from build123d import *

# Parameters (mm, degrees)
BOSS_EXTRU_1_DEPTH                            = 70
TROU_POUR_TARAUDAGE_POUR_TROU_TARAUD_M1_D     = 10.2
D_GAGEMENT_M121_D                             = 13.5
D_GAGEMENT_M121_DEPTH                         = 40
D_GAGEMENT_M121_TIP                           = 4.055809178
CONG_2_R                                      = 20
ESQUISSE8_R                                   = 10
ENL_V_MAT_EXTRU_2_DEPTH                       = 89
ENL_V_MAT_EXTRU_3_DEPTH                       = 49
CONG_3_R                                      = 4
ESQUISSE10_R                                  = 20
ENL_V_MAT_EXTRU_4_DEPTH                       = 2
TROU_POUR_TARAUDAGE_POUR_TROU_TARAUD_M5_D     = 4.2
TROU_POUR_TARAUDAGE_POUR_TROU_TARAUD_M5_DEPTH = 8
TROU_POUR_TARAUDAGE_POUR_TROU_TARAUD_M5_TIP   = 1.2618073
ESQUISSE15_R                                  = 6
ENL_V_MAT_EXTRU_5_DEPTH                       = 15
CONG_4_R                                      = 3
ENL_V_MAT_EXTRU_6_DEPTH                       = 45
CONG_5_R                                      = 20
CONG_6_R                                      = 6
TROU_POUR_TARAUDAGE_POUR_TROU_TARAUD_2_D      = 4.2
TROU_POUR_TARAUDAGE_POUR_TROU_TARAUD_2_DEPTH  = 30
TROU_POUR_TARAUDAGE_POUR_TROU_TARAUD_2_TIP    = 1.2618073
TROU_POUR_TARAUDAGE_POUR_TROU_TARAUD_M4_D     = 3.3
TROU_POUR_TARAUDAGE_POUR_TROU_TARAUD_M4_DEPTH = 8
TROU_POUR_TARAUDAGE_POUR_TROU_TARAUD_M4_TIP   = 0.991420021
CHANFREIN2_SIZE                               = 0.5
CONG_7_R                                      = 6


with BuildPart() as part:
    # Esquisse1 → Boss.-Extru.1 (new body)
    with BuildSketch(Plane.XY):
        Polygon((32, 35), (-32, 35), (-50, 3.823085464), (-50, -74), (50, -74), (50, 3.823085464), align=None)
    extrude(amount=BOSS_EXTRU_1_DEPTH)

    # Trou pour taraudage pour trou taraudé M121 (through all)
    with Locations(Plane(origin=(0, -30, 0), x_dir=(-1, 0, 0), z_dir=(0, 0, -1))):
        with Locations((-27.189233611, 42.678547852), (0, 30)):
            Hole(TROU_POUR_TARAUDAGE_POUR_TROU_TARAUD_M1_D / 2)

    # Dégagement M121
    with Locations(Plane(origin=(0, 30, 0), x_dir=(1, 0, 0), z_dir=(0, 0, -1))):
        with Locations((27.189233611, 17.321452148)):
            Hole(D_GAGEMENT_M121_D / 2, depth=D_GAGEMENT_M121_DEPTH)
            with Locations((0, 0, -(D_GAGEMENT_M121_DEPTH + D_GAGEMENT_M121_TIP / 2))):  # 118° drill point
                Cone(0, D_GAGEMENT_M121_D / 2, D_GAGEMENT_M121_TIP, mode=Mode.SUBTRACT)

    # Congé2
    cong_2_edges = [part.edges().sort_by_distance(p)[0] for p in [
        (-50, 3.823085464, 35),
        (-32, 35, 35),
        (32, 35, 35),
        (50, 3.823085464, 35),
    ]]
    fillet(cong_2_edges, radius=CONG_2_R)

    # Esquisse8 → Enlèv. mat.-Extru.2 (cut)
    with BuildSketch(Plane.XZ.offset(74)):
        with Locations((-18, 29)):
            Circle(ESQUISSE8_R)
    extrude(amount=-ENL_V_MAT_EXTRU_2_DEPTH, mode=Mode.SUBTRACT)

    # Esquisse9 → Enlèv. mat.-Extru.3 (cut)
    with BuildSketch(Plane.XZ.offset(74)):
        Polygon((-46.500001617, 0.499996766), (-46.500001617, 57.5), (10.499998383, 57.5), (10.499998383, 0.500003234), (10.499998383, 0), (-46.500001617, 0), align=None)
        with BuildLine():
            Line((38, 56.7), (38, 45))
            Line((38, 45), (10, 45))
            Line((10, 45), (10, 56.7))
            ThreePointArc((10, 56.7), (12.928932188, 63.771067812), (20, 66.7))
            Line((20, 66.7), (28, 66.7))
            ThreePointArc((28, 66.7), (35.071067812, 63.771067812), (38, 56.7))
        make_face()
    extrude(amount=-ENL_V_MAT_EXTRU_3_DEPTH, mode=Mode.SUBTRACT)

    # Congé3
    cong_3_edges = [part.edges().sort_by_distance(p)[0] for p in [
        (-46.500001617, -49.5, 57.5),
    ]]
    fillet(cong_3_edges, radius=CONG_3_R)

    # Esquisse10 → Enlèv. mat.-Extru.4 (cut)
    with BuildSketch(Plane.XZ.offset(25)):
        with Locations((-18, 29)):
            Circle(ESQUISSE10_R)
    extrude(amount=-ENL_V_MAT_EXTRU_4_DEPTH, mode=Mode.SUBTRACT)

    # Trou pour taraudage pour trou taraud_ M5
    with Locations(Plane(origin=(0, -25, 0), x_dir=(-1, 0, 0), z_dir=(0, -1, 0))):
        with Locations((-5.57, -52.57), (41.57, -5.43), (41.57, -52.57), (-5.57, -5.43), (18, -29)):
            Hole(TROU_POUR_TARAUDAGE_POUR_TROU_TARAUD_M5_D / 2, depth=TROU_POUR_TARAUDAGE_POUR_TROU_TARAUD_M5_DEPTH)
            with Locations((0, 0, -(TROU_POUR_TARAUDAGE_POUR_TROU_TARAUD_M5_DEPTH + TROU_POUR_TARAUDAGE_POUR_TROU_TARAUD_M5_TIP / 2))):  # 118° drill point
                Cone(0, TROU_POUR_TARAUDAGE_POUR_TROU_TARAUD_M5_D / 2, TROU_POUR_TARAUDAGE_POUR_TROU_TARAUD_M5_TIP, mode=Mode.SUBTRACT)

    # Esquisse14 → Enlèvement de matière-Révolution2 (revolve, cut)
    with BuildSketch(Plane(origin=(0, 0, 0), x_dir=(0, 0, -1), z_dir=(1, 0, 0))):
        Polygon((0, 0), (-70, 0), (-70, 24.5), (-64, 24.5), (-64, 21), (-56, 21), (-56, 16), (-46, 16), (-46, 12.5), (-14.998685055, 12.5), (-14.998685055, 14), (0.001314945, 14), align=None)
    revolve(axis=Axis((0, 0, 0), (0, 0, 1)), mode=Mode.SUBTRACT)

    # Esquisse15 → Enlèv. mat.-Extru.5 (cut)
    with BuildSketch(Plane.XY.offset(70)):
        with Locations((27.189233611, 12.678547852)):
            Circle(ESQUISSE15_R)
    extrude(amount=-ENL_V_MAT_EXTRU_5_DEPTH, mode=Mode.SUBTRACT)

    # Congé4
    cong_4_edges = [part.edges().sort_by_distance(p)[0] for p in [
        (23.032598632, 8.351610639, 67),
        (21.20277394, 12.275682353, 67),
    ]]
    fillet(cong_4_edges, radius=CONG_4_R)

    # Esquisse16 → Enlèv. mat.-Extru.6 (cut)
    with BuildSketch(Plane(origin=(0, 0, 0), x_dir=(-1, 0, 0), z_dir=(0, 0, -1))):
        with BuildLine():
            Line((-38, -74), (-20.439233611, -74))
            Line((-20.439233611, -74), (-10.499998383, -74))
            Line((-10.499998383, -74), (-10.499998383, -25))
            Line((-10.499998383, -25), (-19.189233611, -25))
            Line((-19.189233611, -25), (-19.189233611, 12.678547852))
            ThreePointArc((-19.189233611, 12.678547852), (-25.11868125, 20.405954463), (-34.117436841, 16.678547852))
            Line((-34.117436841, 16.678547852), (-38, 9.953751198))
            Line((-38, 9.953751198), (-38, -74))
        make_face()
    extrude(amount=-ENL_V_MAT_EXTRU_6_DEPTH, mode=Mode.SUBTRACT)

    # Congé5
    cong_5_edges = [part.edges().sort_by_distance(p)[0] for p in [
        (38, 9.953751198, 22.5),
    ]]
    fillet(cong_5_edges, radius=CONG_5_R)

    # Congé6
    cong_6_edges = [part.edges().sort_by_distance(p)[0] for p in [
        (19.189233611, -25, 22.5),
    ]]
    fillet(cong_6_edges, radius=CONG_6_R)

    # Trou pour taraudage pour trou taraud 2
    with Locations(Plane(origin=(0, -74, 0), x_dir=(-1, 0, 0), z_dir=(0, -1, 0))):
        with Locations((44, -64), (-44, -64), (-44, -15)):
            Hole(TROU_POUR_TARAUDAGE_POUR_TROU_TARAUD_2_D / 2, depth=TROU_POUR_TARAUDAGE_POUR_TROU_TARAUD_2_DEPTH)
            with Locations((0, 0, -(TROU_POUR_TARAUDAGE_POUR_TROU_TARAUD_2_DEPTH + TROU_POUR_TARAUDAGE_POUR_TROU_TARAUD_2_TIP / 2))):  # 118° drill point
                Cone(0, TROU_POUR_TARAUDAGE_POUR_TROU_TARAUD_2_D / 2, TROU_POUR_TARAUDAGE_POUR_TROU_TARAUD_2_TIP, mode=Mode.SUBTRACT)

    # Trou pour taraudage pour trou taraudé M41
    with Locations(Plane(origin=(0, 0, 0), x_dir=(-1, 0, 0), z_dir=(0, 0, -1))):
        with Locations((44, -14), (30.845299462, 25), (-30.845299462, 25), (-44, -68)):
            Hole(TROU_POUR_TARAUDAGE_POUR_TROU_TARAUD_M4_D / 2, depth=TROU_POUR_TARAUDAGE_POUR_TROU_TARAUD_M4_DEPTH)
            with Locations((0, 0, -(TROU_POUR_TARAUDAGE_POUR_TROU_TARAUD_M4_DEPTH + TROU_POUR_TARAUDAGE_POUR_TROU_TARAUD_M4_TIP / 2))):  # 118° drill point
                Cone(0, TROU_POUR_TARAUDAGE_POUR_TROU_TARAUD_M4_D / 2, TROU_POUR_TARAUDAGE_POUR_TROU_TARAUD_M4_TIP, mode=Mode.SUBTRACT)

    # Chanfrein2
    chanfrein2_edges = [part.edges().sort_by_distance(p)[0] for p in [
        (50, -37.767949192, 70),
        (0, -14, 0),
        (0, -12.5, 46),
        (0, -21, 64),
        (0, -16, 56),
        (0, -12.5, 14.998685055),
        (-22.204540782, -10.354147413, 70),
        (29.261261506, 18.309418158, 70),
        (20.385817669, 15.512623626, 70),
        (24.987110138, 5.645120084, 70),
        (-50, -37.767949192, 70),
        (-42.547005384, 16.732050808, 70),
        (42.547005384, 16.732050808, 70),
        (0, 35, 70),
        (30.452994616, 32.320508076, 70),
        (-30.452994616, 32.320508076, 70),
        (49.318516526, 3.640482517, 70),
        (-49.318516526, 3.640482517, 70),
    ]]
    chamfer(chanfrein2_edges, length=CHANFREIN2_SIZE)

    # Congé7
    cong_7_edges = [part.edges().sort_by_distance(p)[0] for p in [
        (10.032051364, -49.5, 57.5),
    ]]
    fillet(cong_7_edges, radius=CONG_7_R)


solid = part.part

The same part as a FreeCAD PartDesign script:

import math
import FreeCAD as App
import Part
import Sketcher

V = App.Vector
Q = App.Units.Quantity


def edges_at(feature, points):
    """Names of the edges that pass closest to the given points."""
    edges = feature.Shape.Edges
    near = lambda p: min(range(len(edges)), key=lambda i: edges[i].distToShape(Part.Vertex(*p))[0])
    return sorted({f"Edge{near(p) + 1}" for p in points})

doc = App.newDocument("Part")
params = doc.addObject("Spreadsheet::Sheet", "Params")
for row, (alias, value) in enumerate([
    ("sketch1_width", "64 mm"),
    ("sketch1_width2", "100 mm"),
    ("pad1_length", "70 mm"),
    ("sketch2_diameter", "10.2 mm"),
    ("hole_diameter", "10.2 mm"),
    ("sketch3_diameter", "13.5 mm"),
    ("hole2_diameter", "13.5 mm"),
    ("hole2_depth", "40 mm"),
    ("fillet_radius", "20 mm"),
    ("sketch4_diameter", "20 mm"),
    ("pocket1_length", "89 mm"),
    ("sketch5_radius", "10 mm"),
    ("sketch5_width", "57 mm"),
    ("sketch5_width2", "8 mm"),
    ("sketch5_height", "45 mm"),
    ("sketch5_width3", "27.500002 mm"),
    ("pocket2_length", "49 mm"),
    ("fillet2_radius", "4 mm"),
    ("sketch6_diameter", "40 mm"),
    ("pocket3_length", "2 mm"),
    ("sketch7_diameter", "4.2 mm"),
    ("hole3_diameter", "4.2 mm"),
    ("hole3_depth", "8 mm"),
    ("sketch8_width", "5 mm"),
    ("sketch8_height", "70 mm"),
    ("sketch8_height2", "15 mm"),
    ("sketch8_height3", "10 mm"),
    ("sketch8_height4", "8 mm"),
    ("groove_angle", "360 deg"),
    ("sketch9_diameter", "12 mm"),
    ("pocket4_length", "15 mm"),
    ("fillet3_radius", "3 mm"),
    ("sketch10_radius", "8 mm"),
    ("sketch10_height", "49 mm"),
    ("sketch10_width", "27.500002 mm"),
    ("pocket5_length", "45 mm"),
    ("fillet4_radius", "20 mm"),
    ("fillet5_radius", "6 mm"),
    ("sketch11_diameter", "4.2 mm"),
    ("hole4_diameter", "4.2 mm"),
    ("hole4_depth", "30 mm"),
    ("sketch12_diameter", "3.3 mm"),
    ("hole5_diameter", "3.3 mm"),
    ("hole5_depth", "8 mm"),
    ("chamfer_size", "0.5 mm"),
    ("fillet6_radius", "6 mm"),
], start=1):
    params.set(f"A{row}", alias)
    params.set(f"B{row}", "=" + value)
    params.setAlias(f"B{row}", alias)

body = doc.addObject("PartDesign::Body", "Body")

# Sketch on XY plane
sketch1 = body.newObject("Sketcher::SketchObject", "Sketch")
sketch1.AttachmentSupport = (doc.getObject("XY_Plane"), [""])
sketch1.MapMode = "FlatFace"
sketch1.addGeometry([
    Part.LineSegment(V(32, 35, 0), V(-32, 35, 0)),  # 0
    Part.LineSegment(V(-32, 35, 0), V(-50, 3.823085, 0)),  # 1
    Part.LineSegment(V(-50, 3.823085, 0), V(-50, -74, 0)),  # 2
    Part.LineSegment(V(-50, -74, 0), V(50, -74, 0)),  # 3
    Part.LineSegment(V(50, -74, 0), V(50, 3.823085, 0)),  # 4
    Part.LineSegment(V(50, 3.823085, 0), V(32, 35, 0)),  # 5
], False)
sketch1.addConstraint([
    Sketcher.Constraint("Coincident", 0, 2, 1, 1),
    Sketcher.Constraint("Coincident", 1, 2, 2, 1),
    Sketcher.Constraint("Coincident", 2, 2, 3, 1),
    Sketcher.Constraint("Coincident", 3, 2, 4, 1),
    Sketcher.Constraint("Coincident", 4, 2, 5, 1),
    Sketcher.Constraint("Coincident", 5, 2, 0, 1),
    Sketcher.Constraint("Horizontal", 0),
    Sketcher.Constraint("Vertical", 2),
    Sketcher.Constraint("Horizontal", 3),
    Sketcher.Constraint("Vertical", 4),
    Sketcher.Constraint("Symmetric", 1, 2, 4, 2, -2),
    Sketcher.Constraint("Equal", 1, 5),
    Sketcher.Constraint("DistanceX", 0, 2, 0, 1, Q("64 mm")),
    Sketcher.Constraint("DistanceX", 3, 1, 3, 2, Q("100 mm")),
    Sketcher.Constraint("Angle", 1, Q("-120 deg")),
    Sketcher.Constraint("DistanceY", -1, 1, 0, 2, Q("35 mm")),
    Sketcher.Constraint("DistanceY", 2, 2, -1, 1, Q("74 mm")),
])
sketch1.setExpression("Constraints[12]", "Params.sketch1_width")
sketch1.setExpression("Constraints[13]", "Params.sketch1_width2")
pad1 = body.newObject("PartDesign::Pad", "Pad")
pad1.Profile = sketch1
pad1.setExpression("Length", "Params.pad1_length")

# Sketch on XY plane
sketch2 = body.newObject("Sketcher::SketchObject", "Sketch001")
sketch2.AttachmentSupport = (doc.getObject("XY_Plane"), [""])
sketch2.MapMode = "FlatFace"
sketch2.addGeometry([
    Part.Circle(V(27.189234, 12.678548, 0), V(0, 0, 1), 5.1),
    Part.Circle(V(0, 0, 0), V(0, 0, 1), 5.1),
], False)
sketch2.addConstraint([
    Sketcher.Constraint("Coincident", 1, 3, -1, 1),
    Sketcher.Constraint("Equal", 0, 1),
    Sketcher.Constraint("Diameter", 0, Q("10.2 mm")),
    Sketcher.Constraint("DistanceX", -1, 1, 0, 3, Q("27.189234 mm")),
    Sketcher.Constraint("DistanceY", -1, 1, 0, 3, Q("12.678548 mm")),
])
sketch2.setExpression("Constraints[2]", "Params.sketch2_diameter")
doc.recompute()
hole = body.newObject("PartDesign::Hole", "Hole")
hole.Profile = sketch2
hole.ThreadType = "None"
hole.setExpression("Diameter", "Params.hole_diameter")
hole.DepthType = "ThroughAll"
hole.Reversed = True

# Sketch on XY plane
sketch3 = body.newObject("Sketcher::SketchObject", "Sketch002")
sketch3.AttachmentSupport = (doc.getObject("XY_Plane"), [""])
sketch3.MapMode = "FlatFace"
sketch3.addGeometry(Part.Circle(V(27.189234, 12.678548, 0), V(0, 0, 1), 6.75), False)
sketch3.addConstraint([
    Sketcher.Constraint("Diameter", 0, Q("13.5 mm")),
    Sketcher.Constraint("DistanceX", -1, 1, 0, 3, Q("27.189234 mm")),
    Sketcher.Constraint("DistanceY", -1, 1, 0, 3, Q("12.678548 mm")),
])
sketch3.setExpression("Constraints[0]", "Params.sketch3_diameter")
doc.recompute()
hole2 = body.newObject("PartDesign::Hole", "Hole001")
hole2.Profile = sketch3
hole2.ThreadType = "None"
hole2.setExpression("Diameter", "Params.hole2_diameter")
hole2.DepthType = "Dimension"
hole2.setExpression("Depth", "Params.hole2_depth")
hole2.DrillPoint = "Angled"
hole2.DrillPointAngle = 118
hole2.Reversed = True
doc.recompute()

fillet = body.newObject("PartDesign::Fillet", "Fillet")
fillet.Base = (hole2, edges_at(hole2, [
    (-50, 3.823, 35),
    (-32, 35, 35),
    (32, 35, 35),
    (50, 3.823, 35),
]))
fillet.setExpression("Radius", "Params.fillet_radius")

# Sketch on XZ plane
sketch4 = body.newObject("Sketcher::SketchObject", "Sketch003")
sketch4.AttachmentSupport = (doc.getObject("XZ_Plane"), [""])
sketch4.MapMode = "FlatFace"
sketch4.AttachmentOffset = App.Placement(V(0, 0, 74), App.Rotation())
sketch4.addGeometry(Part.Circle(V(-18, 29, 0), V(0, 0, 1), 10), False)
sketch4.addConstraint([
    Sketcher.Constraint("Diameter", 0, Q("20 mm")),
    Sketcher.Constraint("DistanceX", 0, 3, -1, 1, Q("18 mm")),
    Sketcher.Constraint("DistanceY", -1, 1, 0, 3, Q("29 mm")),
])
sketch4.setExpression("Constraints[0]", "Params.sketch4_diameter")
pocket1 = body.newObject("PartDesign::Pocket", "Pocket")
pocket1.Profile = sketch4
pocket1.setExpression("Length", "Params.pocket1_length")

# Sketch on XZ plane
sketch5 = body.newObject("Sketcher::SketchObject", "Sketch004")
sketch5.AttachmentSupport = (doc.getObject("XZ_Plane"), [""])
sketch5.MapMode = "FlatFace"
sketch5.AttachmentOffset = App.Placement(V(0, 0, 74), App.Rotation())
sketch5.addGeometry([
    Part.LineSegment(V(-46.500002, 57.5, 0), V(-46.500002, 0, 0)),  # 0
    Part.LineSegment(V(-46.500002, 0, 0), V(10.499998, 0, 0)),  # 1
    Part.LineSegment(V(10.499998, 0, 0), V(10.499998, 45, 0)),  # 2
    Part.LineSegment(V(10.499998, 45, 0), V(38, 45, 0)),  # 3
    Part.LineSegment(V(38, 45, 0), V(38, 56.7, 0)),  # 4
    Part.ArcOfCircle(Part.Circle(V(28, 56.7, 0), V(0, 0, 1), 10), math.radians(0), math.radians(90)),  # 5
    Part.LineSegment(V(28, 66.7, 0), V(20, 66.7, 0)),  # 6
    Part.ArcOfCircle(Part.Circle(V(20, 56.7, 0), V(0, 0, 1), 10), math.radians(90), math.radians(175.411434)),  # 7
    Part.LineSegment(V(10.032051, 57.5, 0), V(-46.500002, 57.5, 0)),  # 8
], False)
sketch5.addConstraint([
    Sketcher.Constraint("Coincident", 0, 2, 1, 1),
    Sketcher.Constraint("Coincident", 1, 2, 2, 1),
    Sketcher.Constraint("Coincident", 2, 2, 3, 1),
    Sketcher.Constraint("Coincident", 3, 2, 4, 1),
    Sketcher.Constraint("Tangent", 4, 2, 5, 1),
    Sketcher.Constraint("Tangent", 5, 2, 6, 1),
    Sketcher.Constraint("Tangent", 6, 2, 7, 1),
    Sketcher.Constraint("Coincident", 7, 2, 8, 1),
    Sketcher.Constraint("Coincident", 8, 2, 0, 1),
    Sketcher.Constraint("Vertical", 0),
    Sketcher.Constraint("Horizontal", 1),
    Sketcher.Constraint("Vertical", 2),
    Sketcher.Constraint("Horizontal", 3),
    Sketcher.Constraint("Vertical", 4),
    Sketcher.Constraint("Horizontal", 6),
    Sketcher.Constraint("Horizontal", 8),
    Sketcher.Constraint("Equal", 5, 7),
    Sketcher.Constraint("PointOnObject", 0, 2, -1),
    Sketcher.Constraint("Radius", 5, Q("10 mm")),
    Sketcher.Constraint("DistanceX", 1, 1, 1, 2, Q("57 mm")),
    Sketcher.Constraint("DistanceX", 6, 2, 6, 1, Q("8 mm")),
    Sketcher.Constraint("DistanceY", 2, 1, 2, 2, Q("45 mm")),
    Sketcher.Constraint("DistanceX", 3, 1, 3, 2, Q("27.500002 mm")),
    Sketcher.Constraint("DistanceY", 0, 2, 0, 1, Q("57.5 mm")),
    Sketcher.Constraint("DistanceY", 4, 1, 4, 2, Q("11.7 mm")),
    Sketcher.Constraint("DistanceX", -1, 1, 5, 3, Q("28 mm")),
])
sketch5.setExpression("Constraints[18]", "Params.sketch5_radius")
sketch5.setExpression("Constraints[19]", "Params.sketch5_width")
sketch5.setExpression("Constraints[20]", "Params.sketch5_width2")
sketch5.setExpression("Constraints[21]", "Params.sketch5_height")
sketch5.setExpression("Constraints[22]", "Params.sketch5_width3")
pocket2 = body.newObject("PartDesign::Pocket", "Pocket001")
pocket2.Profile = sketch5
pocket2.setExpression("Length", "Params.pocket2_length")
doc.recompute()

fillet2 = body.newObject("PartDesign::Fillet", "Fillet001")
fillet2.Base = (pocket2, edges_at(pocket2, [(-46.5, -49.5, 57.5)]))
fillet2.setExpression("Radius", "Params.fillet2_radius")

# Sketch on XZ plane
sketch6 = body.newObject("Sketcher::SketchObject", "Sketch005")
sketch6.AttachmentSupport = (doc.getObject("XZ_Plane"), [""])
sketch6.MapMode = "FlatFace"
sketch6.AttachmentOffset = App.Placement(V(0, 0, 25), App.Rotation())
sketch6.addGeometry(Part.Circle(V(-18, 29, 0), V(0, 0, 1), 20), False)
sketch6.addConstraint([
    Sketcher.Constraint("Diameter", 0, Q("40 mm")),
    Sketcher.Constraint("DistanceX", 0, 3, -1, 1, Q("18 mm")),
    Sketcher.Constraint("DistanceY", -1, 1, 0, 3, Q("29 mm")),
])
sketch6.setExpression("Constraints[0]", "Params.sketch6_diameter")
pocket3 = body.newObject("PartDesign::Pocket", "Pocket002")
pocket3.Profile = sketch6
pocket3.setExpression("Length", "Params.pocket3_length")

# Sketch on XZ plane
sketch7 = body.newObject("Sketcher::SketchObject", "Sketch006")
sketch7.AttachmentSupport = (doc.getObject("XZ_Plane"), [""])
sketch7.MapMode = "FlatFace"
sketch7.AttachmentOffset = App.Placement(V(0, 0, 25), App.Rotation())
sketch7.addGeometry([
    Part.Circle(V(5.57, 52.57, 0), V(0, 0, 1), 2.1),  # 0
    Part.Circle(V(-41.57, 5.43, 0), V(0, 0, 1), 2.1),  # 1
    Part.Circle(V(-41.57, 52.57, 0), V(0, 0, 1), 2.1),  # 2
    Part.Circle(V(5.57, 5.43, 0), V(0, 0, 1), 2.1),  # 3
    Part.Circle(V(-18, 29, 0), V(0, 0, 1), 2.1),  # 4
], False)
sketch7.addConstraint([
    Sketcher.Constraint("Equal", 0, 1),
    Sketcher.Constraint("Equal", 1, 2),
    Sketcher.Constraint("Equal", 2, 3),
    Sketcher.Constraint("Equal", 3, 4),
    Sketcher.Constraint("Horizontal", 0, 3, 2, 3),
    Sketcher.Constraint("Horizontal", 1, 3, 3, 3),
    Sketcher.Constraint("Vertical", 1, 3, 2, 3),
    Sketcher.Constraint("Vertical", 0, 3, 3, 3),
    Sketcher.Constraint("Diameter", 0, Q("4.2 mm")),
    Sketcher.Constraint("DistanceX", 4, 3, -1, 1, Q("18 mm")),
    Sketcher.Constraint("DistanceY", -1, 1, 4, 3, Q("29 mm")),
    Sketcher.Constraint("DistanceX", -1, 1, 0, 3, Q("5.57 mm")),
    Sketcher.Constraint("DistanceY", -1, 1, 0, 3, Q("52.57 mm")),
    Sketcher.Constraint("DistanceX", 1, 3, -1, 1, Q("41.57 mm")),
    Sketcher.Constraint("DistanceY", -1, 1, 1, 3, Q("5.43 mm")),
])
sketch7.setExpression("Constraints[8]", "Params.sketch7_diameter")
doc.recompute()
hole3 = body.newObject("PartDesign::Hole", "Hole002")
hole3.Profile = sketch7
hole3.ThreadType = "None"
hole3.setExpression("Diameter", "Params.hole3_diameter")
hole3.DepthType = "Dimension"
hole3.setExpression("Depth", "Params.hole3_depth")
hole3.DrillPoint = "Angled"
hole3.DrillPointAngle = 118

# Sketch on YZ plane
sketch8 = body.newObject("Sketcher::SketchObject", "Sketch007")
sketch8.AttachmentSupport = (doc.getObject("YZ_Plane"), [""])
sketch8.MapMode = "FlatFace"
sketch8.addGeometry([
    Part.LineSegment(V(0, 70, 0), V(0, 0, 0)),  # 0
    Part.LineSegment(V(0, 0, 0), V(14, -0.001315, 0)),  # 1
    Part.LineSegment(V(14, -0.001315, 0), V(14, 14.998685, 0)),  # 2
    Part.LineSegment(V(14, 14.998685, 0), V(12.5, 14.998685, 0)),  # 3
    Part.LineSegment(V(12.5, 14.998685, 0), V(12.5, 46, 0)),  # 4
    Part.LineSegment(V(12.5, 46, 0), V(16, 46, 0)),  # 5
    Part.LineSegment(V(16, 46, 0), V(16, 56, 0)),  # 6
    Part.LineSegment(V(16, 56, 0), V(21, 56, 0)),  # 7
    Part.LineSegment(V(21, 56, 0), V(21, 64, 0)),  # 8
    Part.LineSegment(V(21, 64, 0), V(24.5, 64, 0)),  # 9
    Part.LineSegment(V(24.5, 64, 0), V(24.5, 70, 0)),  # 10
    Part.LineSegment(V(24.5, 70, 0), V(0, 70, 0)),  # 11
], False)
sketch8.addConstraint([
    Sketcher.Constraint("Coincident", 0, 2, 1, 1),
    Sketcher.Constraint("Coincident", 1, 2, 2, 1),
    Sketcher.Constraint("Coincident", 2, 2, 3, 1),
    Sketcher.Constraint("Coincident", 3, 2, 4, 1),
    Sketcher.Constraint("Coincident", 4, 2, 5, 1),
    Sketcher.Constraint("Coincident", 5, 2, 6, 1),
    Sketcher.Constraint("Coincident", 6, 2, 7, 1),
    Sketcher.Constraint("Coincident", 7, 2, 8, 1),
    Sketcher.Constraint("Coincident", 8, 2, 9, 1),
    Sketcher.Constraint("Coincident", 9, 2, 10, 1),
    Sketcher.Constraint("Coincident", 10, 2, 11, 1),
    Sketcher.Constraint("Coincident", 11, 2, 0, 1),
    Sketcher.Constraint("Vertical", 0),
    Sketcher.Constraint("Vertical", 2),
    Sketcher.Constraint("Horizontal", 3),
    Sketcher.Constraint("Vertical", 4),
    Sketcher.Constraint("Horizontal", 5),
    Sketcher.Constraint("Vertical", 6),
    Sketcher.Constraint("Horizontal", 7),
    Sketcher.Constraint("Vertical", 8),
    Sketcher.Constraint("Horizontal", 9),
    Sketcher.Constraint("Vertical", 10),
    Sketcher.Constraint("Horizontal", 11),
    Sketcher.Constraint("Coincident", 0, 2, -1, 1),
    Sketcher.Constraint("Equal", 5, 9),
    Sketcher.Constraint("DistanceX", 7, 1, 7, 2, Q("5 mm")),
    Sketcher.Constraint("DistanceY", 0, 2, 0, 1, Q("70 mm")),
    Sketcher.Constraint("DistanceY", 2, 1, 2, 2, Q("15 mm")),
    Sketcher.Constraint("DistanceY", 6, 1, 6, 2, Q("10 mm")),
    Sketcher.Constraint("DistanceY", 8, 1, 8, 2, Q("8 mm")),
    Sketcher.Constraint("DistanceY", 10, 1, 10, 2, Q("6 mm")),
    Sketcher.Constraint("Distance", 1, Q("14 mm")),
    Sketcher.Constraint("DistanceX", 3, 2, 3, 1, Q("1.5 mm")),
    Sketcher.Constraint("DistanceX", 5, 1, 5, 2, Q("3.5 mm")),
    Sketcher.Constraint("DistanceY", 4, 1, 4, 2, Q("31.001315 mm")),
])
sketch8.setExpression("Constraints[25]", "Params.sketch8_width")
sketch8.setExpression("Constraints[26]", "Params.sketch8_height")
sketch8.setExpression("Constraints[27]", "Params.sketch8_height2")
sketch8.setExpression("Constraints[28]", "Params.sketch8_height3")
sketch8.setExpression("Constraints[29]", "Params.sketch8_height4")
groove = body.newObject("PartDesign::Groove", "Groove")
groove.Profile = sketch8
groove.ReferenceAxis = (sketch8, ["V_Axis"])
groove.setExpression("Angle", "Params.groove_angle")

# Sketch on XY plane
sketch9 = body.newObject("Sketcher::SketchObject", "Sketch008")
sketch9.AttachmentSupport = (doc.getObject("XY_Plane"), [""])
sketch9.MapMode = "FlatFace"
sketch9.AttachmentOffset = App.Placement(V(0, 0, 70), App.Rotation())
sketch9.addGeometry(Part.Circle(V(27.189234, 12.678548, 0), V(0, 0, 1), 6), False)
sketch9.addConstraint([
    Sketcher.Constraint("Diameter", 0, Q("12 mm")),
    Sketcher.Constraint("DistanceX", -1, 1, 0, 3, Q("27.189234 mm")),
    Sketcher.Constraint("DistanceY", -1, 1, 0, 3, Q("12.678548 mm")),
])
sketch9.setExpression("Constraints[0]", "Params.sketch9_diameter")
pocket4 = body.newObject("PartDesign::Pocket", "Pocket003")
pocket4.Profile = sketch9
pocket4.setExpression("Length", "Params.pocket4_length")
doc.recompute()

fillet3 = body.newObject("PartDesign::Fillet", "Fillet002")
fillet3.Base = (pocket4, edges_at(pocket4, [(23.033, 8.352, 67), (21.203, 12.276, 67)]))
fillet3.setExpression("Radius", "Params.fillet3_radius")

# Sketch on XY plane
sketch10 = body.newObject("Sketcher::SketchObject", "Sketch009")
sketch10.AttachmentSupport = (doc.getObject("XY_Plane"), [""])
sketch10.MapMode = "FlatFace"
sketch10.addGeometry([
    Part.LineSegment(V(38, -74, 0), V(10.499998, -74, 0)),  # 0
    Part.LineSegment(V(10.499998, -74, 0), V(10.499998, -25, 0)),  # 1
    Part.LineSegment(V(10.499998, -25, 0), V(19.189234, -25, 0)),  # 2
    Part.LineSegment(V(19.189234, -25, 0), V(19.189234, 12.678548, 0)),  # 3
    Part.ArcOfCircle(Part.Circle(V(27.189234, 12.678548, 0), V(0, 0, 1), 8), math.radians(30), math.radians(180)),  # 4
    Part.LineSegment(V(34.117437, 16.678548, 0), V(38, 9.953751, 0)),  # 5
    Part.LineSegment(V(38, 9.953751, 0), V(38, -74, 0)),  # 6
], False)
sketch10.addConstraint([
    Sketcher.Constraint("Coincident", 0, 2, 1, 1),
    Sketcher.Constraint("Coincident", 1, 2, 2, 1),
    Sketcher.Constraint("Coincident", 2, 2, 3, 1),
    Sketcher.Constraint("Tangent", 3, 2, 4, 2),
    Sketcher.Constraint("Tangent", 4, 1, 5, 1),
    Sketcher.Constraint("Coincident", 5, 2, 6, 1),
    Sketcher.Constraint("Coincident", 6, 2, 0, 1),
    Sketcher.Constraint("Horizontal", 0),
    Sketcher.Constraint("Vertical", 1),
    Sketcher.Constraint("Horizontal", 2),
    Sketcher.Constraint("Vertical", 3),
    Sketcher.Constraint("Vertical", 6),
    Sketcher.Constraint("Radius", 4, Q("8 mm")),
    Sketcher.Constraint("DistanceY", 1, 1, 1, 2, Q("49 mm")),
    Sketcher.Constraint("Angle", 5, Q("-60 deg")),
    Sketcher.Constraint("DistanceX", 0, 2, 0, 1, Q("27.500002 mm")),
    Sketcher.Constraint("DistanceY", 0, 2, -1, 1, Q("74 mm")),
    Sketcher.Constraint("DistanceX", -1, 1, 5, 2, Q("38 mm")),
    Sketcher.Constraint("DistanceY", 6, 2, 6, 1, Q("83.953751 mm")),
    Sketcher.Constraint("DistanceX", 2, 1, 2, 2, Q("8.689235 mm")),
])
sketch10.setExpression("Constraints[12]", "Params.sketch10_radius")
sketch10.setExpression("Constraints[13]", "Params.sketch10_height")
sketch10.setExpression("Constraints[15]", "Params.sketch10_width")
pocket5 = body.newObject("PartDesign::Pocket", "Pocket004")
pocket5.Profile = sketch10
pocket5.setExpression("Length", "Params.pocket5_length")
pocket5.Reversed = True
doc.recompute()

fillet4 = body.newObject("PartDesign::Fillet", "Fillet003")
fillet4.Base = (pocket5, edges_at(pocket5, [(38, 9.954, 22.5)]))
fillet4.setExpression("Radius", "Params.fillet4_radius")
doc.recompute()

fillet5 = body.newObject("PartDesign::Fillet", "Fillet004")
fillet5.Base = (fillet4, edges_at(fillet4, [(19.189, -25, 22.5)]))
fillet5.setExpression("Radius", "Params.fillet5_radius")

# Sketch on XZ plane
sketch11 = body.newObject("Sketcher::SketchObject", "Sketch010")
sketch11.AttachmentSupport = (doc.getObject("XZ_Plane"), [""])
sketch11.MapMode = "FlatFace"
sketch11.AttachmentOffset = App.Placement(V(0, 0, 74), App.Rotation())
sketch11.addGeometry([
    Part.Circle(V(-44, 64, 0), V(0, 0, 1), 2.1),
    Part.Circle(V(44, 64, 0), V(0, 0, 1), 2.1),
    Part.Circle(V(44, 15, 0), V(0, 0, 1), 2.1),
], False)
sketch11.addConstraint([
    Sketcher.Constraint("Equal", 0, 1),
    Sketcher.Constraint("Equal", 1, 2),
    Sketcher.Constraint("Symmetric", 0, 3, 1, 3, -2),
    Sketcher.Constraint("Vertical", 1, 3, 2, 3),
    Sketcher.Constraint("Diameter", 0, Q("4.2 mm")),
    Sketcher.Constraint("DistanceX", 0, 3, -1, 1, Q("44 mm")),
    Sketcher.Constraint("DistanceY", -1, 1, 0, 3, Q("64 mm")),
    Sketcher.Constraint("DistanceY", -1, 1, 2, 3, Q("15 mm")),
])
sketch11.setExpression("Constraints[4]", "Params.sketch11_diameter")
doc.recompute()
hole4 = body.newObject("PartDesign::Hole", "Hole003")
hole4.Profile = sketch11
hole4.ThreadType = "None"
hole4.setExpression("Diameter", "Params.hole4_diameter")
hole4.DepthType = "Dimension"
hole4.setExpression("Depth", "Params.hole4_depth")
hole4.DrillPoint = "Angled"
hole4.DrillPointAngle = 118

# Sketch on XY plane
sketch12 = body.newObject("Sketcher::SketchObject", "Sketch011")
sketch12.AttachmentSupport = (doc.getObject("XY_Plane"), [""])
sketch12.MapMode = "FlatFace"
sketch12.addGeometry([
    Part.Circle(V(-44, -14, 0), V(0, 0, 1), 1.65),
    Part.Circle(V(-30.845299, 25, 0), V(0, 0, 1), 1.65),
    Part.Circle(V(30.845299, 25, 0), V(0, 0, 1), 1.65),
    Part.Circle(V(44, -68, 0), V(0, 0, 1), 1.65),
], False)
sketch12.addConstraint([
    Sketcher.Constraint("Equal", 0, 1),
    Sketcher.Constraint("Equal", 1, 2),
    Sketcher.Constraint("Equal", 2, 3),
    Sketcher.Constraint("Symmetric", 1, 3, 2, 3, -2),
    Sketcher.Constraint("Diameter", 0, Q("3.3 mm")),
    Sketcher.Constraint("DistanceX", 0, 3, -1, 1, Q("44 mm")),
    Sketcher.Constraint("DistanceY", 0, 3, -1, 1, Q("14 mm")),
    Sketcher.Constraint("DistanceY", -1, 1, 1, 3, Q("25 mm")),
    Sketcher.Constraint("DistanceX", -1, 1, 3, 3, Q("44 mm")),
    Sketcher.Constraint("DistanceY", 3, 3, -1, 1, Q("68 mm")),
    Sketcher.Constraint("DistanceX", 1, 3, -1, 1, Q("30.845299 mm")),
])
sketch12.setExpression("Constraints[4]", "Params.sketch12_diameter")
doc.recompute()
hole5 = body.newObject("PartDesign::Hole", "Hole004")
hole5.Profile = sketch12
hole5.ThreadType = "None"
hole5.setExpression("Diameter", "Params.hole5_diameter")
hole5.DepthType = "Dimension"
hole5.setExpression("Depth", "Params.hole5_depth")
hole5.DrillPoint = "Angled"
hole5.DrillPointAngle = 118
hole5.Reversed = True
doc.recompute()

chamfer = body.newObject("PartDesign::Chamfer", "Chamfer")
chamfer.Base = (hole5, edges_at(hole5, [
    (50, -37.768, 70),
    (0, -14, 0),
    (0, -12.5, 46),
    (0, -21, 64),
    (0, -16, 56),
    (0, -12.5, 14.999),
    (-22.205, -10.354, 70),
    (29.261, 18.309, 70),
    (20.386, 15.513, 70),
    (24.987, 5.645, 70),
    (-50, -37.768, 70),
    (-42.547, 16.732, 70),
    (42.547, 16.732, 70),
    (0, 35, 70),
    (30.453, 32.321, 70),
    (-30.453, 32.321, 70),
    (49.319, 3.64, 70),
    (-49.319, 3.64, 70),
]))
chamfer.setExpression("Size", "Params.chamfer_size")
doc.recompute()

fillet6 = body.newObject("PartDesign::Fillet", "Fillet005")
fillet6.Base = (chamfer, edges_at(chamfer, [(10.032, -49.5, 57.5)]))
fillet6.setExpression("Radius", "Params.fillet6_radius")

doc.recompute()
